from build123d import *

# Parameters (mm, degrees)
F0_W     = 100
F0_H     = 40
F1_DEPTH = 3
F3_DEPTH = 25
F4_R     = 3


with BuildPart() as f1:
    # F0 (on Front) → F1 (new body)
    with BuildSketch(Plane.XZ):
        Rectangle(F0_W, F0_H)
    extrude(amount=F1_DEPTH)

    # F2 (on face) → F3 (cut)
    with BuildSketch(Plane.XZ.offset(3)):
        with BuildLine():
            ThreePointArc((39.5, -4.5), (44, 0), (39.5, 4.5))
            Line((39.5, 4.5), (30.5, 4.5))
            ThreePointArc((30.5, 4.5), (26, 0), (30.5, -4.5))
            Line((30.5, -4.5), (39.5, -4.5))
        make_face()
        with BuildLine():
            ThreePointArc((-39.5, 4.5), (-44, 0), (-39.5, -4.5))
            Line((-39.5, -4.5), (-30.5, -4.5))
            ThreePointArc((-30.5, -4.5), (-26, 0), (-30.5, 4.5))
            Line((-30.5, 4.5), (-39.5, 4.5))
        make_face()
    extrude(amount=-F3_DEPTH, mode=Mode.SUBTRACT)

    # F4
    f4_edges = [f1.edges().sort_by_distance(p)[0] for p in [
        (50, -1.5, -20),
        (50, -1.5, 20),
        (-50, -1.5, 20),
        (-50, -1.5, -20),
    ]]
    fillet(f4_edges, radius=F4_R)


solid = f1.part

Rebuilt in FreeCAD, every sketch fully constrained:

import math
import FreeCAD as App
import Part
import Sketcher
Q = App.Units.Quantity


def edges_at(feature, points):
    """Names of the edges that pass closest to the given points."""
    edges = feature.Shape.Edges
    near = lambda p: min(range(len(edges)), key=lambda i: edges[i].distToShape(Part.Vertex(*p))[0])
    return sorted({f"Edge{near(p) + 1}" for p in points})


def add_polygon(sketch, points):
    """Adds a closed chain of lines whose ends are joined by coincident constraints."""
    first, n = sketch.GeometryCount, len(points)
    for a, b in zip(points, points[1:] + points[:1]):
        sketch.addGeometry(Part.LineSegment(App.Vector(*a, 0), App.Vector(*b, 0)), False)
    for i in range(n):
        sketch.addConstraint(Sketcher.Constraint("Coincident", first + i, 2, first + (i + 1) % n, 1))

doc = App.newDocument("Part")
params = doc.addObject("Spreadsheet::Sheet", "Params")
for row, (alias, value) in enumerate([
    ("sketch1_width", "100 mm"),
    ("sketch1_height", "40 mm"),
    ("pad1_length", "3 mm"),
    ("sketch2_radius", "4.5 mm"),
    ("sketch2_width", "9 mm"),
    ("pocket1_length", "25 mm"),
    ("fillet_radius", "3 mm"),
], start=1):
    params.set(f"A{row}", alias)
    params.set(f"B{row}", "=" + value)
    params.setAlias(f"B{row}", alias)

body = doc.addObject("PartDesign::Body", "Body")

# Sketch on XZ plane
sketch1 = body.newObject("Sketcher::SketchObject", "Sketch")
sketch1.AttachmentSupport = (doc.getObject("XZ_Plane"), [""])
sketch1.MapMode = "FlatFace"
add_polygon(sketch1, [(-50, 20), (-50, -20), (50, -20), (50, 20)])  # lines 0-3
sketch1.addConstraint([
    Sketcher.Constraint("Vertical", 0),
    Sketcher.Constraint("Horizontal", 1),
    Sketcher.Constraint("Vertical", 2),
    Sketcher.Constraint("Horizontal", 3),
    Sketcher.Constraint("Symmetric", 0, 2, 2, 2, -1, 1),
    Sketcher.Constraint("DistanceX", 1, 1, 1, 2, Q("100 mm")),
    Sketcher.Constraint("DistanceY", 0, 2, 0, 1, Q("40 mm")),
])
sketch1.setExpression("Constraints[9]", "Params.sketch1_width")
sketch1.setExpression("Constraints[10]", "Params.sketch1_height")
pad1 = body.newObject("PartDesign::Pad", "Pad")
pad1.Profile = sketch1
pad1.setExpression("Length", "Params.pad1_length")

# Sketch on XZ plane
sketch2 = body.newObject("Sketcher::SketchObject", "Sketch001")
sketch2.AttachmentSupport = (doc.getObject("XZ_Plane"), [""])
sketch2.MapMode = "FlatFace"
sketch2.AttachmentOffset = App.Placement(App.Vector(0, 0, 3), App.Rotation())
sketch2.addGeometry([
    Part.ArcOfCircle(Part.Circle(App.Vector(39.5, 0, 0), App.Vector(0, 0, 1), 4.5), math.radians(-90), math.radians(90)),  # 0
    Part.LineSegment(App.Vector(39.5, 4.5, 0), App.Vector(30.5, 4.5, 0)),  # 1
    Part.ArcOfCircle(Part.Circle(App.Vector(30.5, 0, 0), App.Vector(0, 0, 1), 4.5), math.radians(90), math.radians(270)),  # 2
    Part.LineSegment(App.Vector(30.5, -4.5, 0), App.Vector(39.5, -4.5, 0)),  # 3
    Part.ArcOfCircle(Part.Circle(App.Vector(-39.5, 0, 0), App.Vector(0, 0, 1), 4.5), math.radians(90), math.radians(270)),  # 4
    Part.LineSegment(App.Vector(-39.5, -4.5, 0), App.Vector(-30.5, -4.5, 0)),  # 5
    Part.ArcOfCircle(Part.Circle(App.Vector(-30.5, 0, 0), App.Vector(0, 0, 1), 4.5), math.radians(-90), math.radians(90)),  # 6
    Part.LineSegment(App.Vector(-30.5, 4.5, 0), App.Vector(-39.5, 4.5, 0)),  # 7
], False)
sketch2.addConstraint([
    Sketcher.Constraint("Tangent", 0, 2, 1, 1),
    Sketcher.Constraint("Tangent", 1, 2, 2, 1),
    Sketcher.Constraint("Tangent", 2, 2, 3, 1),
    Sketcher.Constraint("Tangent", 3, 2, 0, 1),
    Sketcher.Constraint("Tangent", 4, 2, 5, 1),
    Sketcher.Constraint("Tangent", 5, 2, 6, 1),
    Sketcher.Constraint("Tangent", 6, 2, 7, 1),
    Sketcher.Constraint("Tangent", 7, 2, 4, 1),
    Sketcher.Constraint("Horizontal", 1),
    Sketcher.Constraint("Horizontal", 3),
    Sketcher.Constraint("Horizontal", 5),
    Sketcher.Constraint("Horizontal", 7),
    Sketcher.Constraint("Equal", 2, 4),
    Sketcher.Constraint("Symmetric", 0, 3, 4, 3, -1, 1),
    Sketcher.Constraint("Symmetric", 2, 3, 6, 3, -2),
    Sketcher.Constraint("Radius", 0, Q("4.5 mm")),
    Sketcher.Constraint("DistanceX", 1, 2, 1, 1, Q("9 mm")),
    Sketcher.Constraint("DistanceX", 4, 3, 2, 3, Q("70 mm")),
])
sketch2.setExpression("Constraints[15]", "Params.sketch2_radius")
sketch2.setExpression("Constraints[16]", "Params.sketch2_width")
pocket1 = body.newObject("PartDesign::Pocket", "Pocket")
pocket1.Profile = sketch2
pocket1.setExpression("Length", "Params.pocket1_length")
doc.recompute()

fillet = body.newObject("PartDesign::Fillet", "Fillet")
fillet.Base = (pocket1, edges_at(pocket1, [
    (50, -1.5, -20),
    (50, -1.5, 20),
    (-50, -1.5, 20),
    (-50, -1.5, -20),
]))
fillet.setExpression("Radius", "Params.fillet_radius")

doc.recompute()
